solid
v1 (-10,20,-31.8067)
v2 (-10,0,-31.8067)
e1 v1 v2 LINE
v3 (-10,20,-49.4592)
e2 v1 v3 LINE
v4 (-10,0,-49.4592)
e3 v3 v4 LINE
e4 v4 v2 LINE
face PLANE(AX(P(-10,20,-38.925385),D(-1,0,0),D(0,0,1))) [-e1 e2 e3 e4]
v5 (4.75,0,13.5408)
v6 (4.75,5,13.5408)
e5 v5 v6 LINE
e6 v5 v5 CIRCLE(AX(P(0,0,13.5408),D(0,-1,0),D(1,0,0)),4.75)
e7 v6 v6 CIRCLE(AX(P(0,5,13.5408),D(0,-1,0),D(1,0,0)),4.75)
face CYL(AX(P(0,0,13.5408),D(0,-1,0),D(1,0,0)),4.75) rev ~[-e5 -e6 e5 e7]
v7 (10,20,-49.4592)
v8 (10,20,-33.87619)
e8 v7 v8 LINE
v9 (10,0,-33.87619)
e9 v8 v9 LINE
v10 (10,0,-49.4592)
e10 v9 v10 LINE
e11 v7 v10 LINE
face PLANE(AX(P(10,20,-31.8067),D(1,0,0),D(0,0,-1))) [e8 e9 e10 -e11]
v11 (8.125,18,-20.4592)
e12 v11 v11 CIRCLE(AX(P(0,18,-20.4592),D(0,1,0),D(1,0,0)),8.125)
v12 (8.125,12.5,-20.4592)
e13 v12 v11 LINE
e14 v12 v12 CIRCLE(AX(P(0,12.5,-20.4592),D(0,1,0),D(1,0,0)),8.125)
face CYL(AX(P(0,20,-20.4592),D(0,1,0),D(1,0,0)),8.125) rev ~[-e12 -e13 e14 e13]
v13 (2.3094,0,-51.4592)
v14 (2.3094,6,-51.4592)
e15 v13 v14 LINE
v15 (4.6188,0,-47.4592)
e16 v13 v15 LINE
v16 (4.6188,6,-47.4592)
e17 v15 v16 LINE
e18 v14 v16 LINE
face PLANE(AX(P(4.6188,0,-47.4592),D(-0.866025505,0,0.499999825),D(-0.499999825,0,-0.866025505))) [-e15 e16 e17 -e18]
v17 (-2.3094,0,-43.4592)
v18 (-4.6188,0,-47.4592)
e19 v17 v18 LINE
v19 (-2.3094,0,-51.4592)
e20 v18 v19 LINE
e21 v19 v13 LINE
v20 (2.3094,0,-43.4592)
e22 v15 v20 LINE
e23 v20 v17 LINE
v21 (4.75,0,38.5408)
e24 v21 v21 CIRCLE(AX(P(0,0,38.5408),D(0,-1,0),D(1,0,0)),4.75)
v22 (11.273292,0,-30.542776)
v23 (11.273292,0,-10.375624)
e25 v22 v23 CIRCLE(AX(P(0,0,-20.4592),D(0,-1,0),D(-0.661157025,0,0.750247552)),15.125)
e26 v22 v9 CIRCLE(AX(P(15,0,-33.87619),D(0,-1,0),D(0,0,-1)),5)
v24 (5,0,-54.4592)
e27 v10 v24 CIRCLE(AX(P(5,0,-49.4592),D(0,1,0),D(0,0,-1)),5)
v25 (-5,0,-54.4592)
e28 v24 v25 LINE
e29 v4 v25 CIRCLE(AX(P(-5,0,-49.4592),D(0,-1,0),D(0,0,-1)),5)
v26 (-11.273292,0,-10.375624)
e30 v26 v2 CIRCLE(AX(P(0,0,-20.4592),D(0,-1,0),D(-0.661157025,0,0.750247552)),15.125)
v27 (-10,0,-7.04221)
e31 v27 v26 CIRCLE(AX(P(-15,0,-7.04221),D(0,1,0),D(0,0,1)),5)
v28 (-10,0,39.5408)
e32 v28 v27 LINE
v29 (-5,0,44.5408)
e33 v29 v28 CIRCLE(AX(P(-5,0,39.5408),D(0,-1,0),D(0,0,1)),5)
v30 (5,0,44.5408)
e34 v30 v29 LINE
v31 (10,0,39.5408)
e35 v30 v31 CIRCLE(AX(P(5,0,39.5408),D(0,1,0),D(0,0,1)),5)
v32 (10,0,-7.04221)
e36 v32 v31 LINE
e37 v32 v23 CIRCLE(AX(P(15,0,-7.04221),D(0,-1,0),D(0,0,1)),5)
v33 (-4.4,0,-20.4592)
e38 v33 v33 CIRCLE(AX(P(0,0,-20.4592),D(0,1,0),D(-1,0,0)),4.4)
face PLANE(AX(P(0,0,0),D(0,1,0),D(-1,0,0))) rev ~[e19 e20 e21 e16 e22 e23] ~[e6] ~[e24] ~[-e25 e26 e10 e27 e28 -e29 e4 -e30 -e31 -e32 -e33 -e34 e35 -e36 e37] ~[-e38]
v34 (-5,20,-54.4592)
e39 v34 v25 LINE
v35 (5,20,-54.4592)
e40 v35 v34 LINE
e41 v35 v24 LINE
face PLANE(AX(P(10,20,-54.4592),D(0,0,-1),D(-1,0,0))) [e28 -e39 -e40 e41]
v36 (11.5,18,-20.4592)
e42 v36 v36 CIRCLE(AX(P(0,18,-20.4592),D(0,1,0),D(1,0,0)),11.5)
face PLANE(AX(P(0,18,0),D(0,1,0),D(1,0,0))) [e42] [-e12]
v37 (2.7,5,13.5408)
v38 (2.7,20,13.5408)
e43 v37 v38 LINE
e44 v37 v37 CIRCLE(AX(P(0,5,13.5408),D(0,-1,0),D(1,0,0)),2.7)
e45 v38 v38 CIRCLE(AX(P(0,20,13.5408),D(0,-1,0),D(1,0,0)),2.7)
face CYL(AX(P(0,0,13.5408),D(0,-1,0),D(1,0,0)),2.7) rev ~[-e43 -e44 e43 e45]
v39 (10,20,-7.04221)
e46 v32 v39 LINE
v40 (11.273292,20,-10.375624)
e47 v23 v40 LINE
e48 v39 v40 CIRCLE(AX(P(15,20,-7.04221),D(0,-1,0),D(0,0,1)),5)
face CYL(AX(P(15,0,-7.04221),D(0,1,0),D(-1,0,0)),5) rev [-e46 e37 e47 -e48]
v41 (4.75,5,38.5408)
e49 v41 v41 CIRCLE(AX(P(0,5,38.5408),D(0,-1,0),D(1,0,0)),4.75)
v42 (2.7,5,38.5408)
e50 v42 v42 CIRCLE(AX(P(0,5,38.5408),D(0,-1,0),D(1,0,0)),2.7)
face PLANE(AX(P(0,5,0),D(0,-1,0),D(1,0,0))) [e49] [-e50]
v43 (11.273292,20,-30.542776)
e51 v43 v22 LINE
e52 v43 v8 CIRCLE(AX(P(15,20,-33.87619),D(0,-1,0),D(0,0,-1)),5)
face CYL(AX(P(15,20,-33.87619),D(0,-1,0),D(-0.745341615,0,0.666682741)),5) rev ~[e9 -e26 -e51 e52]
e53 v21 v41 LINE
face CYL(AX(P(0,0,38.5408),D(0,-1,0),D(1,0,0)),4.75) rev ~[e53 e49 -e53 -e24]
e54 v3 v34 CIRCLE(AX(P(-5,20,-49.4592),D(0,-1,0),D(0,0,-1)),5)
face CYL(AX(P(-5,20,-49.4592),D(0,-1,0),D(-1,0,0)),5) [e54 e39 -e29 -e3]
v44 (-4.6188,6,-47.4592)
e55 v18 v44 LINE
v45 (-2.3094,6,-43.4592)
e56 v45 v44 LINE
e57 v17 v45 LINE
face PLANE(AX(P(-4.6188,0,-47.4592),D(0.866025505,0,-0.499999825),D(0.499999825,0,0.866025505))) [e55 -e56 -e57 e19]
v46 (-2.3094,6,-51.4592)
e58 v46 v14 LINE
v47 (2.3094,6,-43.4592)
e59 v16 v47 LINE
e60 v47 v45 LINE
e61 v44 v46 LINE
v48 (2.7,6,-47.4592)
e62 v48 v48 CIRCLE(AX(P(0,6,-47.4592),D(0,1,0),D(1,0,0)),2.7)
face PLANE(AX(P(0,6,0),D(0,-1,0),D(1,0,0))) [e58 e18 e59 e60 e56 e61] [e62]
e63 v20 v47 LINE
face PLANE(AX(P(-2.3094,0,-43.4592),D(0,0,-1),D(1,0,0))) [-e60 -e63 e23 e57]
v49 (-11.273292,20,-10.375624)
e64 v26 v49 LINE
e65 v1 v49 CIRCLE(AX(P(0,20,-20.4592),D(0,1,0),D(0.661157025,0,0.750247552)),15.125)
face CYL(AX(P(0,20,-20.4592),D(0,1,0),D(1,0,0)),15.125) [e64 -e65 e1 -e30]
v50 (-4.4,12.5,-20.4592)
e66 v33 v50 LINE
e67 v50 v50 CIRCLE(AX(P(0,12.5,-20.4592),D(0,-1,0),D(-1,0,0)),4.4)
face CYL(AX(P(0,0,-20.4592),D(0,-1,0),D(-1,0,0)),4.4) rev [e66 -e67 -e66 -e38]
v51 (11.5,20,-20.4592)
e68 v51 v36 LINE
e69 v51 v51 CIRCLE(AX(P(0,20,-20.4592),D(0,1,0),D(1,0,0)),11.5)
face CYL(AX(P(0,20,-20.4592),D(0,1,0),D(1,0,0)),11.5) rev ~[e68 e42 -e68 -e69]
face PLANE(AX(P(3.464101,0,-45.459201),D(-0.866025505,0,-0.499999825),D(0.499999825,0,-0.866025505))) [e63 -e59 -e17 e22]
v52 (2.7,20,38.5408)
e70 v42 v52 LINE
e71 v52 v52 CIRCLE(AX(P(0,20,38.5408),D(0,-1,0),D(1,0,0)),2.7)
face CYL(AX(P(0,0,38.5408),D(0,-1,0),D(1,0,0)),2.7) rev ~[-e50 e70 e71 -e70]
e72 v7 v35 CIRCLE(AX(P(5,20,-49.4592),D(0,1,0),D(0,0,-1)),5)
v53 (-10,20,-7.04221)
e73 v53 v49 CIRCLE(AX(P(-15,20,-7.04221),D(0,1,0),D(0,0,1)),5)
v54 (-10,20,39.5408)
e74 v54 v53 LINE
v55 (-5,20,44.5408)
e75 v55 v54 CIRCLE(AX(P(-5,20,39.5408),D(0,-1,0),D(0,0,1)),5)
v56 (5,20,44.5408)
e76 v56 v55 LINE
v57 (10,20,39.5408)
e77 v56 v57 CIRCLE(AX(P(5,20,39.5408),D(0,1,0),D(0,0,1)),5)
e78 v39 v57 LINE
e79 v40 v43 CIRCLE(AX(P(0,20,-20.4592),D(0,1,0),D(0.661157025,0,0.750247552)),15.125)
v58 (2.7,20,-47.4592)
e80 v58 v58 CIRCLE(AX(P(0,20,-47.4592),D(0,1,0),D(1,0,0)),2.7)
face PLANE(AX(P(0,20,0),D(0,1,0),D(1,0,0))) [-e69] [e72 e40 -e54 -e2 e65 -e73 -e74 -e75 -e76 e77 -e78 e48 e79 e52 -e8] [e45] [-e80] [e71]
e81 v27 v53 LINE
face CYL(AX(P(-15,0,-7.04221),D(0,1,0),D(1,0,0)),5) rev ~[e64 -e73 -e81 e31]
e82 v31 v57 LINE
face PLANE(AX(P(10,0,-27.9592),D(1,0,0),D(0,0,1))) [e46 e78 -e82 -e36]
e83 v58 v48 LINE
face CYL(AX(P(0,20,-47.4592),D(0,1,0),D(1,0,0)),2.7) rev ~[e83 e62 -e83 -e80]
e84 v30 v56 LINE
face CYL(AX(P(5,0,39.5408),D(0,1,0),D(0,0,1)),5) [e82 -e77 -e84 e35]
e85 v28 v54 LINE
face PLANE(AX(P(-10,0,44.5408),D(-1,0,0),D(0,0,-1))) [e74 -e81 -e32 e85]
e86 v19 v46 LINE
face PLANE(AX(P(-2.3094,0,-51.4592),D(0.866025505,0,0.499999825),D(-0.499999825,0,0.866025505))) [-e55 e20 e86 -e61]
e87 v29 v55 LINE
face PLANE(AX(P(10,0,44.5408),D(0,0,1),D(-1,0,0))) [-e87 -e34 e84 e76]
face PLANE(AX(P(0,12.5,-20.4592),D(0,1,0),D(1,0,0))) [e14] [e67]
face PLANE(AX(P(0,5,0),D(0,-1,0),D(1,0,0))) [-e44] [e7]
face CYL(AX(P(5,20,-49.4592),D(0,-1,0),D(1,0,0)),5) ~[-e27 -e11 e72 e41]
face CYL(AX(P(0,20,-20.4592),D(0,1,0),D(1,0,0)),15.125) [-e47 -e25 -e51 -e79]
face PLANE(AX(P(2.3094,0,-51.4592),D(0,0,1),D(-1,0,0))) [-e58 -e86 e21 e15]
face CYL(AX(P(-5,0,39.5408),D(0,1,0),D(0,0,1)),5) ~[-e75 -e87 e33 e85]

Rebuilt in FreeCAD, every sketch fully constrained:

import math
import FreeCAD as App
import Part
import Sketcher
Q = App.Units.Quantity


def edges_at(feature, points):
    """Names of the edges that pass closest to the given points."""
    edges = feature.Shape.Edges
    near = lambda p: min(range(len(edges)), key=lambda i: edges[i].distToShape(Part.Vertex(*p))[0])
    return sorted({f"Edge{near(p) + 1}" for p in points})


def add_polygon(sketch, points):
    """Adds a closed chain of lines whose ends are joined by coincident constraints."""
    first, n = sketch.GeometryCount, len(points)
    for a, b in zip(points, points[1:] + points[:1]):
        sketch.addGeometry(Part.LineSegment(App.Vector(*a, 0), App.Vector(*b, 0)), False)
    for i in range(n):
        sketch.addConstraint(Sketcher.Constraint("Coincident", first + i, 2, first + (i + 1) % n, 1))

doc = App.newDocument("Part")
body = doc.addObject("PartDesign::Body", "Body")

sketch1 = doc.addObject("Sketcher::SketchObject", "Sketch")
body.addObject(sketch1)
sketch1.AttachmentSupport = (doc.XZ_Plane, [""])
sketch1.MapMode = "FlatFace"
add_polygon(sketch1, [(-10, 44.5), (10, 44.5), (10, -28), (-10, -28)])
sketch1.addGeometry(Part.Circle(App.Vector(0, -20.5, 0), App.Vector(0, 0, 1), 4.4), False)
sketch1.addConstraint([
    Sketcher.Constraint("Horizontal", 0),
    Sketcher.Constraint("Vertical", 1),
    Sketcher.Constraint("Horizontal", 2),
    Sketcher.Constraint("Vertical", 3),
    Sketcher.Constraint("PointOnObject", 4, 3, -2),
    Sketcher.Constraint("Diameter", 4, Q("8.8 mm")),
    Sketcher.Constraint("DistanceX", 0, 1, 0, 2, Q("20 mm")),
    Sketcher.Constraint("DistanceY", 4, 3, 0, 2, Q("65 mm")),
    Sketcher.Constraint("DistanceY", 1, 2, 4, 3, Q("7.5 mm")),
    Sketcher.Constraint("DistanceX", -1, 1, 0, 2, Q("10 mm")),
    Sketcher.Constraint("DistanceY", 4, 3, -1, 1, Q("20.4592 mm")),
])
pad1 = doc.addObject("PartDesign::Pad", "Pad")
body.addObject(pad1)
pad1.Profile = sketch1
pad1.Length = 20
pad1.Reversed = True

sketch2 = doc.addObject("Sketcher::SketchObject", "Sketch001")
body.addObject(sketch2)
sketch2.AttachmentSupport = (doc.XZ_Plane, [""])
sketch2.MapMode = "FlatFace"
sketch2.AttachmentOffset = App.Placement(App.Vector(0, 0, -20), App.Rotation())
sketch2.addGeometry([
    Part.Circle(App.Vector(0, -20.5, 0), App.Vector(0, 0, 1), 12.1),
    Part.Circle(App.Vector(0, -20.5, 0), App.Vector(0, 0, 1), 4.4),
], False)
sketch2.addConstraint([
    Sketcher.Constraint("Coincident", 1, 3, 0, 3),
    Sketcher.Constraint("PointOnObject", 0, 3, -2),
    Sketcher.Constraint("Diameter", 0, Q("24.25 mm")),
    Sketcher.Constraint("Diameter", 1, Q("8.8 mm")),
    Sketcher.Constraint("DistanceY", 0, 3, -1, 1, Q("20.4592 mm")),
])
pocket1 = doc.addObject("PartDesign::Pocket", "Pocket")
body.addObject(pocket1)
pocket1.Profile = sketch2
pocket1.Length = 2.5
pocket1.Reversed = True

sketch3 = doc.addObject("Sketcher::SketchObject", "Sketch002")
body.addObject(sketch3)
sketch3.AttachmentSupport = (doc.XZ_Plane, [""])
sketch3.MapMode = "FlatFace"
sketch3.AttachmentOffset = App.Placement(App.Vector(0, 0, -20), App.Rotation())
sketch3.addGeometry([
    Part.Circle(App.Vector(0, -20.5, 0), App.Vector(0, 0, 1), 15.1),
    Part.LineSegment(App.Vector(10, -27.3, 0), App.Vector(10, -13.6, 0)),
    Part.ArcOfCircle(Part.Circle(App.Vector(0, -20.5, 0), App.Vector(0, 0, 1), 12.1), math.radians(34), math.radians(146)),
    Part.LineSegment(App.Vector(-10, -13.6, 0), App.Vector(-10, -27.3, 0)),
    Part.ArcOfCircle(Part.Circle(App.Vector(0, -20.5, 0), App.Vector(0, 0, 1), 12.1), math.radians(-145.56), math.radians(-141.79)),
    Part.LineSegment(App.Vector(-9.5, -28, 0), App.Vector(9.5, -28, 0)),
    Part.ArcOfCircle(Part.Circle(App.Vector(0, -20.5, 0), App.Vector(0, 0, 1), 12.1), math.radians(-38.21), math.radians(-34.44)),
], False)
sketch3.addConstraint([
    Sketcher.Constraint("Coincident", 1, 2, 2, 1),
    Sketcher.Constraint("Coincident", 2, 2, 3, 1),
    Sketcher.Constraint("Coincident", 3, 2, 4, 1),
    Sketcher.Constraint("Coincident", 4, 2, 5, 1),
    Sketcher.Constraint("Coincident", 5, 2, 6, 1),
    Sketcher.Constraint("Coincident", 6, 2, 1, 1),
    Sketcher.Constraint("Vertical", 1),
    Sketcher.Constraint("Vertical", 3),
    Sketcher.Constraint("Horizontal", 5),
    Sketcher.Constraint("Coincident", 2, 3, 0, 3),
    Sketcher.Constraint("Coincident", 4, 3, 0, 3),
    Sketcher.Constraint("Coincident", 6, 3, 0, 3),
    Sketcher.Constraint("Equal", 2, 4),
    Sketcher.Constraint("Equal", 4, 6),
    Sketcher.Constraint("Symmetric", 1, 2, 2, 2, -2),
    Sketcher.Constraint("Diameter", 0, Q("30.25 mm")),
    Sketcher.Constraint("DistanceX", -1, 1, 1, 2, Q("10 mm")),
    Sketcher.Constraint("Radius", 2, Q("12.125 mm")),
    Sketcher.Constraint("DistanceY", 4, 2, 0, 3, Q("7.5 mm")),
    Sketcher.Constraint("DistanceY", 3, 2, -1, 1, Q("27.316 mm")),
])
pad2 = doc.addObject("PartDesign::Pad", "Pad001")
body.addObject(pad2)
pad2.Profile = sketch3
pad2.Length = 20

sketch4 = doc.addObject("Sketcher::SketchObject", "Sketch003")
body.addObject(sketch4)
sketch4.AttachmentSupport = (doc.XZ_Plane, [""])
sketch4.MapMode = "FlatFace"
sketch4.AttachmentOffset = App.Placement(App.Vector(0, 0, -20), App.Rotation())
sketch4.addGeometry(Part.Circle(App.Vector(0, -20, 0), App.Vector(0, 0, 1), 12), False)
sketch4.addConstraint([
    Sketcher.Constraint("PointOnObject", 0, 3, -2),
    Sketcher.Constraint("Diameter", 0, Q("24.3 mm")),
    Sketcher.Constraint("DistanceY", 0, 3, -1, 1, Q("20.4592 mm")),
])
pocket2 = doc.addObject("PartDesign::Pocket", "Pocket001")
body.addObject(pocket2)
pocket2.Profile = sketch4
pocket2.Length = 2
pocket2.Reversed = True

sketch5 = doc.addObject("Sketcher::SketchObject", "Sketch004")
body.addObject(sketch5)
sketch5.AttachmentSupport = (doc.XZ_Plane, [""])
sketch5.MapMode = "FlatFace"
sketch5.AttachmentOffset = App.Placement(App.Vector(0, 0, -17.5), App.Rotation())
sketch5.addGeometry([
    Part.LineSegment(App.Vector(10, -13.6, 0), App.Vector(10, -27.3, 0)),
    Part.ArcOfCircle(Part.Circle(App.Vector(0, -20.5, 0), App.Vector(0, 0, 1), 12.1), math.radians(-38.21), math.radians(-34.44)),
    Part.LineSegment(App.Vector(9.5, -28, 0), App.Vector(-9.5, -28, 0)),
    Part.ArcOfCircle(Part.Circle(App.Vector(0, -20.5, 0), App.Vector(0, 0, 1), 12.1), math.radians(-145.56), math.radians(-141.79)),
    Part.LineSegment(App.Vector(-10, -27.3, 0), App.Vector(-10, -13.6, 0)),
    Part.ArcOfCircle(Part.Circle(App.Vector(0, -20.5, 0), App.Vector(0, 0, 1), 12.1), math.radians(34), math.radians(146)),
    Part.Circle(App.Vector(0, -20.5, 0), App.Vector(0, 0, 1), 4.4),
], False)
sketch5.addConstraint([
    Sketcher.Constraint("Coincident", 0, 2, 1, 2),
    Sketcher.Constraint("Coincident", 1, 1, 2, 1),
    Sketcher.Constraint("Coincident", 2, 2, 3, 2),
    Sketcher.Constraint("Coincident", 3, 1, 4, 1),
    Sketcher.Constraint("Coincident", 4, 2, 5, 2),
    Sketcher.Constraint("Coincident", 5, 1, 0, 1),
    Sketcher.Constraint("Vertical", 0),
    Sketcher.Constraint("Horizontal", 2),
    Sketcher.Constraint("Vertical", 4),
    Sketcher.Constraint("Coincident", 6, 3, 5, 3),
    Sketcher.Constraint("Symmetric", 0, 2, 3, 1, -2),
    Sketcher.Constraint("PointOnObject", 5, 3, -2),
    Sketcher.Constraint("Vertical", 1, 3, 3, 3),
    Sketcher.Constraint("Diameter", 6, Q("8.8 mm")),
    Sketcher.Constraint("DistanceX", -1, 1, 0, 2, Q("10 mm")),
    Sketcher.Constraint("Radius", 5, Q("12.125 mm")),
    Sketcher.Constraint("Radius", 1, Q("12.1223 mm")),
    Sketcher.Constraint("Radius", 3, Q("12.1277 mm")),
    Sketcher.Constraint("DistanceY", 1, 1, 5, 3, Q("7.5 mm")),
    Sketcher.Constraint("DistanceX", 2, 2, 2, 1, Q("19.0542 mm")),
    Sketcher.Constraint("DistanceY", 0, 2, -1, 1, Q("27.316 mm")),
    Sketcher.Constraint("DistanceX", -1, 1, 1, 1, Q("9.527 mm")),
])
pad3 = doc.addObject("PartDesign::Pad", "Pad002")
body.addObject(pad3)
pad3.Profile = sketch5
pad3.Length = 0.5
pad3.Reversed = True

sketch6 = doc.addObject("Sketcher::SketchObject", "Sketch005")
body.addObject(sketch6)
sketch6.AttachmentSupport = (doc.XZ_Plane, [""])
sketch6.MapMode = "FlatFace"
sketch6.addGeometry([
    Part.Circle(App.Vector(0, 38.5, 0), App.Vector(0, 0, 1), 2.7),
    Part.Circle(App.Vector(0, 13.5, 0), App.Vector(0, 0, 1), 2.7),
], False)
sketch6.addConstraint([
    Sketcher.Constraint("Equal", 0, 1),
    Sketcher.Constraint("PointOnObject", 0, 3, -2),
    Sketcher.Constraint("PointOnObject", 1, 3, -2),
    Sketcher.Constraint("Diameter", 0, Q("5.4 mm")),
    Sketcher.Constraint("DistanceY", 1, 3, 0, 3, Q("25 mm")),
    Sketcher.Constraint("DistanceY", -1, 1, 0, 3, Q("38.5408 mm")),
])
pocket3 = doc.addObject("PartDesign::Pocket", "Pocket002")
body.addObject(pocket3)
pocket3.Profile = sketch6
pocket3.Type = "ThroughAll"

sketch7 = doc.addObject("Sketcher::SketchObject", "Sketch006")
body.addObject(sketch7)
sketch7.AttachmentSupport = (doc.XZ_Plane, [""])
sketch7.MapMode = "FlatFace"
sketch7.AttachmentOffset = App.Placement(App.Vector(0, 0, -18), App.Rotation())
sketch7.addGeometry(Part.Circle(App.Vector(0, -20, 0), App.Vector(0, 0, 1), 8), False)
sketch7.addConstraint([
    Sketcher.Constraint("PointOnObject", 0, 3, -2),
    Sketcher.Constraint("Diameter", 0, Q("16.25 mm")),
    Sketcher.Constraint("DistanceY", 0, 3, -1, 1, Q("20.4592 mm")),
])
pocket4 = doc.addObject("PartDesign::Pocket", "Pocket003")
body.addObject(pocket4)
pocket4.Profile = sketch7
pocket4.Length = 5.5
pocket4.Reversed = True
doc.recompute()

fillet = doc.addObject("PartDesign::Fillet", "Fillet")
body.addObject(fillet)
fillet.Base = (pocket4, edges_at(pocket4, [
    (10, 10, 44.541),
    (-10, 10, 44.541),
    (10, 10, -9.112),
    (-10, 10, -9.112),
]))
fillet.Radius = 5

sketch8 = doc.addObject("Sketcher::SketchObject", "Sketch007")
body.addObject(sketch8)
sketch8.AttachmentSupport = (doc.XZ_Plane, [""])
sketch8.MapMode = "FlatFace"
sketch8.AttachmentOffset = App.Placement(App.Vector(0, 0, -20), App.Rotation())
sketch8.addGeometry([
    Part.ArcOfCircle(Part.Circle(App.Vector(0, -20.5, 0), App.Vector(0, 0, 1), 15.1), math.radians(-131), math.radians(-49)),
    Part.LineSegment(App.Vector(10, -31.8, 0), App.Vector(10, -54.5, 0)),
    Part.LineSegment(App.Vector(10, -54.5, 0), App.Vector(-10, -54.5, 0)),
    Part.LineSegment(App.Vector(-10, -54.5, 0), App.Vector(-10, -31.8, 0)),
    Part.Circle(App.Vector(0, -47.5, 0), App.Vector(0, 0, 1), 2.7),
], False)
sketch8.addConstraint([
    Sketcher.Constraint("Coincident", 0, 2, 1, 1),
    Sketcher.Constraint("Coincident", 1, 2, 2, 1),
    Sketcher.Constraint("Coincident", 2, 2, 3, 1),
    Sketcher.Constraint("Coincident", 3, 2, 0, 1),
    Sketcher.Constraint("Vertical", 1),
    Sketcher.Constraint("Horizontal", 2),
    Sketcher.Constraint("Vertical", 3),
    Sketcher.Constraint("Symmetric", 0, 2, 3, 2, -2),
    Sketcher.Constraint("PointOnObject", 4, 3, -2),
    Sketcher.Constraint("Diameter", 4, Q("5.4 mm")),
    Sketcher.Constraint("DistanceY", 1, 2, 4, 3, Q("7 mm")),
    Sketcher.Constraint("DistanceY", 1, 2, 0, 3, Q("34 mm")),
    Sketcher.Constraint("DistanceX", 2, 2, 2, 1, Q("20 mm")),
    Sketcher.Constraint("Radius", 0, Q("15.125 mm")),
    Sketcher.Constraint("DistanceY", 0, 3, -1, 1, Q("20.4592 mm")),
])
pad4 = doc.addObject("PartDesign::Pad", "Pad003")
body.addObject(pad4)
pad4.Profile = sketch8
pad4.Length = 20
doc.recompute()

fillet2 = doc.addObject("PartDesign::Fillet", "Fillet001")
body.addObject(fillet2)
fillet2.Base = (pad4, edges_at(pad4, [(10, 10, -31.807), (10, 10, -54.459), (-10, 10, -54.459)]))
fillet2.Radius = 5

sketch9 = doc.addObject("Sketcher::SketchObject", "Sketch008")
body.addObject(sketch9)
sketch9.AttachmentSupport = (doc.XZ_Plane, [""])
sketch9.MapMode = "FlatFace"
add_polygon(sketch9, [(4.6, -47.5), (2.3, -43.5), (-2.3, -43.5), (-4.6, -47.5), (-2.3, -51.5), (2.3, -51.5)])
sketch9.addConstraint([
    Sketcher.Constraint("Horizontal", 1),
    Sketcher.Constraint("Horizontal", 4),
    Sketcher.Constraint("Symmetric", 2, 2, 5, 2, -2),
    Sketcher.Constraint("Parallel", 0, 3),
    Sketcher.Constraint("Parallel", 2, 5),
    Sketcher.Constraint("Vertical", 1, 2, 3, 2),
    Sketcher.Constraint("Vertical", 0, 2, 4, 2),
    Sketcher.Constraint("DistanceY", 3, 2, 1, 2, Q("8 mm")),
    Sketcher.Constraint("Angle", 0, Q("120 deg")),
    Sketcher.Constraint("DistanceX", 1, 2, 1, 1, Q("4.6188 mm")),
    Sketcher.Constraint("DistanceY", 0, 2, -1, 1, Q("43.4592 mm")),
])
pocket5 = doc.addObject("PartDesign::Pocket", "Pocket004")
body.addObject(pocket5)
pocket5.Profile = sketch9
pocket5.Length = 6

sketch10 = doc.addObject("Sketcher::SketchObject", "Sketch009")
body.addObject(sketch10)
sketch10.AttachmentSupport = (doc.XZ_Plane, [""])
sketch10.MapMode = "FlatFace"
sketch10.addGeometry([
    Part.Circle(App.Vector(0, 38.5, 0), App.Vector(0, 0, 1), 4.8),
    Part.Circle(App.Vector(0, 38.5, 0), App.Vector(0, 0, 1), 2.7),
    Part.Circle(App.Vector(0, 13.5, 0), App.Vector(0, 0, 1), 4.8),
    Part.Circle(App.Vector(0, 13.5, 0), App.Vector(0, 0, 1), 2.7),
], False)
sketch10.addConstraint([
    Sketcher.Constraint("Coincident", 1, 3, 0, 3),
    Sketcher.Constraint("Coincident", 3, 3, 2, 3),
    Sketcher.Constraint("Equal", 0, 2),
    Sketcher.Constraint("Equal", 1, 3),
    Sketcher.Constraint("PointOnObject", 0, 3, -2),
    Sketcher.Constraint("PointOnObject", 2, 3, -2),
    Sketcher.Constraint("Diameter", 0, Q("9.5 mm")),
    Sketcher.Constraint("Diameter", 1, Q("5.4 mm")),
    Sketcher.Constraint("DistanceY", 2, 3, 0, 3, Q("25 mm")),
    Sketcher.Constraint("DistanceY", -1, 1, 0, 3, Q("38.5408 mm")),
])
pocket6 = doc.addObject("PartDesign::Pocket", "Pocket005")
body.addObject(pocket6)
pocket6.Profile = sketch10
pocket6.Length = 5

sketch11 = doc.addObject("Sketcher::SketchObject", "Sketch010")
body.addObject(sketch11)
sketch11.AttachmentSupport = (doc.XZ_Plane, [""])
sketch11.MapMode = "FlatFace"
sketch11.AttachmentOffset = App.Placement(App.Vector(0, 0, -20), App.Rotation())
sketch11.addGeometry([
    Part.Circle(App.Vector(0, -20, 0), App.Vector(0, 0, 1), 12),
    Part.Circle(App.Vector(0, -20, 0), App.Vector(0, 0, 1), 8),
], False)
sketch11.addConstraint([
    Sketcher.Constraint("Coincident", 1, 3, 0, 3),
    Sketcher.Constraint("PointOnObject", 0, 3, -2),
    Sketcher.Constraint("Diameter", 0, Q("24.3 mm")),
    Sketcher.Constraint("Diameter", 1, Q("16.25 mm")),
    Sketcher.Constraint("DistanceY", 0, 3, -1, 1, Q("20.4592 mm")),
])
pad5 = doc.addObject("PartDesign::Pad", "Pad004")
body.addObject(pad5)
pad5.Profile = sketch11
pad5.Length = 2

sketch12 = doc.addObject("Sketcher::SketchObject", "Sketch011")
body.addObject(sketch12)
sketch12.AttachmentSupport = (doc.XZ_Plane, [""])
sketch12.MapMode = "FlatFace"
sketch12.AttachmentOffset = App.Placement(App.Vector(0, 0, -20), App.Rotation())
sketch12.addGeometry([
    Part.Circle(App.Vector(0, -20, 0), App.Vector(0, 0, 1), 12),
    Part.Circle(App.Vector(0, -20, 0), App.Vector(0, 0, 1), 8),
], False)
sketch12.addConstraint([
    Sketcher.Constraint("Coincident", 1, 3, 0, 3),
    Sketcher.Constraint("PointOnObject", 0, 3, -2),
    Sketcher.Constraint("Diameter", 0, Q("23 mm")),
    Sketcher.Constraint("Diameter", 1, Q("16.25 mm")),
    Sketcher.Constraint("DistanceY", 0, 3, -1, 1, Q("20.4592 mm")),
])
pocket7 = doc.addObject("PartDesign::Pocket", "Pocket006")
body.addObject(pocket7)
pocket7.Profile = sketch12
pocket7.Length = 2
pocket7.Reversed = True

doc.recompute()
